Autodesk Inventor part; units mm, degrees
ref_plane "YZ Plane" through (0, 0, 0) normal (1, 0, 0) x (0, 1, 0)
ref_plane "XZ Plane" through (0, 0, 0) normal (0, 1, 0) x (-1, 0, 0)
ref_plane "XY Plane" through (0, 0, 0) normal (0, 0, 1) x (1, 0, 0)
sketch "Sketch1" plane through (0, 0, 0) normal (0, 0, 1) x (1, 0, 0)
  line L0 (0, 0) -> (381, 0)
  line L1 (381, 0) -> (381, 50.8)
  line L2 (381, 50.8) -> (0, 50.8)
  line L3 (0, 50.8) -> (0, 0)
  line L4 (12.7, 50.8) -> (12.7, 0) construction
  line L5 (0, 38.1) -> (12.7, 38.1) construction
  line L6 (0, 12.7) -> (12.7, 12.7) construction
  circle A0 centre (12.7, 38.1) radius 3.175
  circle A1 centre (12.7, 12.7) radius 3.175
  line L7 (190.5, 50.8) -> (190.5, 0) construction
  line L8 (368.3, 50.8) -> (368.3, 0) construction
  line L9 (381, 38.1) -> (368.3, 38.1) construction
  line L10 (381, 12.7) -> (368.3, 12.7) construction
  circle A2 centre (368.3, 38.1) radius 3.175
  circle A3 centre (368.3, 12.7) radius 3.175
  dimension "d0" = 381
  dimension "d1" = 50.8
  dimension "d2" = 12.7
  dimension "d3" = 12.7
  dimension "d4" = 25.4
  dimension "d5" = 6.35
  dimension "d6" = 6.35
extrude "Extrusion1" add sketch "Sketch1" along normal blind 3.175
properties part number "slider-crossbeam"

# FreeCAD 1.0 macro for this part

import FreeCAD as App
import Part
import Sketcher

V = App.Vector
Q = App.Units.Quantity


def add_polygon(sketch, points):
    """Adds a closed chain of lines whose ends are joined by coincident constraints."""
    first, n = sketch.GeometryCount, len(points)
    for a, b in zip(points, points[1:] + points[:1]):
        sketch.addGeometry(Part.LineSegment(App.Vector(*a, 0), App.Vector(*b, 0)), False)
    for i in range(n):
        sketch.addConstraint(Sketcher.Constraint("Coincident", first + i, 2, first + (i + 1) % n, 1))

doc = App.newDocument("Part")
body = doc.addObject("PartDesign::Body", "Body")

sketch1 = body.newObject("Sketcher::SketchObject", "Sketch")
sketch1.AttachmentSupport = (doc.getObject("XY_Plane"), [""])
sketch1.MapMode = "FlatFace"
add_polygon(sketch1, [(0, 50.8), (0, 0), (381, 0), (381, 50.8)])
sketch1.addGeometry(Part.Circle(V(12.7, 12.7, 0), V(0, 0, 1), 3.2), False)
sketch1.addGeometry(Part.Circle(V(368.3, 12.7, 0), V(0, 0, 1), 3.2), False)
sketch1.addGeometry(Part.Circle(V(12.7, 38.1, 0), V(0, 0, 1), 3.2), False)
sketch1.addGeometry(Part.Circle(V(368.3, 38.1, 0), V(0, 0, 1), 3.2), False)
sketch1.addConstraint([
    Sketcher.Constraint("Vertical", 0),
    Sketcher.Constraint("Horizontal", 1),
    Sketcher.Constraint("Vertical", 2),
    Sketcher.Constraint("Horizontal", 3),
    Sketcher.Constraint("Coincident", 0, 2, -1, 1),
    Sketcher.Constraint("Equal", 4, 5),
    Sketcher.Constraint("Equal", 5, 6),
    Sketcher.Constraint("Equal", 6, 7),
    Sketcher.Constraint("Horizontal", 4, 3, 5, 3),
    Sketcher.Constraint("Horizontal", 6, 3, 7, 3),
    Sketcher.Constraint("Vertical", 4, 3, 6, 3),
    Sketcher.Constraint("Vertical", 5, 3, 7, 3),
    Sketcher.Constraint("Diameter", 4, Q("0.25 in")),
    Sketcher.Constraint("DistanceX", 1, 1, 1, 2, Q("15 in")),
    Sketcher.Constraint("DistanceY", 0, 2, 0, 1, Q("2 in")),
    Sketcher.Constraint("DistanceY", 4, 3, 6, 3, Q("1 in")),
    Sketcher.Constraint("DistanceX", -1, 1, 4, 3, Q("0.5 in")),
    Sketcher.Constraint("DistanceY", -1, 1, 4, 3, Q("0.5 in")),
    Sketcher.Constraint("DistanceX", 5, 3, 1, 2, Q("0.5 in")),
])
pad1 = body.newObject("PartDesign::Pad", "Pad")
pad1.Profile = sketch1
pad1.Length = Q("0.125 in")

doc.recompute()
